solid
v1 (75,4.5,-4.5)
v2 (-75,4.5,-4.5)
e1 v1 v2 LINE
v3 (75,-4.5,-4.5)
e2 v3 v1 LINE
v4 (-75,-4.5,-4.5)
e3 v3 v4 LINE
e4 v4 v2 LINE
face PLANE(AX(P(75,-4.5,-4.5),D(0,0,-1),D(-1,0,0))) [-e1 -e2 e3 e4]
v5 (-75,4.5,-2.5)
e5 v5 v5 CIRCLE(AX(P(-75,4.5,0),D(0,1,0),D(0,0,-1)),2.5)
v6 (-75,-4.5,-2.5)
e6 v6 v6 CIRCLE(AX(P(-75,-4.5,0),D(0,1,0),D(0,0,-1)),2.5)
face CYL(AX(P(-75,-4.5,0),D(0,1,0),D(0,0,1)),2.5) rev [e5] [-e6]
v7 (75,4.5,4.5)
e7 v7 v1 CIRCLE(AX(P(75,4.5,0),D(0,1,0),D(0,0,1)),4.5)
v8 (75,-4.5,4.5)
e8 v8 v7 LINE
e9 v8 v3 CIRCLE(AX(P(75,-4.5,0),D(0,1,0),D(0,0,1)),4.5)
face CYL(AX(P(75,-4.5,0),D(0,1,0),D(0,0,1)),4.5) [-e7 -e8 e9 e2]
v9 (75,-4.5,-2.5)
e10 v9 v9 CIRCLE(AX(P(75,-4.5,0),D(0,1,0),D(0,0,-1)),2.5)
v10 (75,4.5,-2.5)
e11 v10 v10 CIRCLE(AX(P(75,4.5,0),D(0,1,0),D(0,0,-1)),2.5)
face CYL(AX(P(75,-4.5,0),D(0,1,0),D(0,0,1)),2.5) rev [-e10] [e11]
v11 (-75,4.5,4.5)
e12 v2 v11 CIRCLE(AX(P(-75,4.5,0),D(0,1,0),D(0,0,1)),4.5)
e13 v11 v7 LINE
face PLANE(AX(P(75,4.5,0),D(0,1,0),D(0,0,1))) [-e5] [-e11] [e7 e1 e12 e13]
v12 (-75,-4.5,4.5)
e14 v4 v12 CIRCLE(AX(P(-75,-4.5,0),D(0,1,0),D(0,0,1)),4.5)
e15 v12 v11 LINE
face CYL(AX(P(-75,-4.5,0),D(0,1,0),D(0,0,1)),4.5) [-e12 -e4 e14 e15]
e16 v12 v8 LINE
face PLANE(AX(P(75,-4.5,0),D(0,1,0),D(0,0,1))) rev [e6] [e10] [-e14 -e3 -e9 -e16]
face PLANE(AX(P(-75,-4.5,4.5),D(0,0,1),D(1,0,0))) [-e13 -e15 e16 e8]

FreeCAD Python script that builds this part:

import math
import FreeCAD as App
import Part
import Sketcher
from FreeCAD import Vector

doc = App.newDocument("Part")
body = doc.addObject("PartDesign::Body", "Body")

# Sketch on XZ plane
sketch1 = body.newObject("Sketcher::SketchObject", "Sketch")
sketch1.AttachmentSupport = (doc.getObject("XZ_Plane"), [""])
sketch1.MapMode = "FlatFace"
sketch1.AttachmentOffset = App.Placement(Vector(0, 0, -4.5), App.Rotation())
sketch1.addGeometry(Part.LineSegment(Vector(75, -4.5, 0), Vector(-75, -4.5, 0)), False)
sketch1.addGeometry(Part.ArcOfCircle(Part.Circle(Vector(-75, 0, 0), Vector(0, 0, 1), 4.5), math.radians(90), math.radians(270)), False)
sketch1.addGeometry(Part.LineSegment(Vector(-75, 4.5, 0), Vector(75, 4.5, 0)), False)
sketch1.addGeometry(Part.ArcOfCircle(Part.Circle(Vector(75, 0, 0), Vector(0, 0, 1), 4.5), math.radians(-90), math.radians(90)), False)
sketch1.addGeometry(Part.Circle(Vector(-75, 0, 0), Vector(0, 0, 1), 2.5), False)
sketch1.addGeometry(Part.Circle(Vector(75, 0, 0), Vector(0, 0, 1), 2.5), False)
sketch1.addConstraint(Sketcher.Constraint("Tangent", 0, 2, 1, 2))
sketch1.addConstraint(Sketcher.Constraint("Tangent", 1, 1, 2, 1))
sketch1.addConstraint(Sketcher.Constraint("Tangent", 2, 2, 3, 2))
sketch1.addConstraint(Sketcher.Constraint("Tangent", 3, 1, 0, 1))
sketch1.addConstraint(Sketcher.Constraint("Horizontal", 0))
sketch1.addConstraint(Sketcher.Constraint("Horizontal", 2))
sketch1.addConstraint(Sketcher.Constraint("Coincident", 4, 3, 1, 3))
sketch1.addConstraint(Sketcher.Constraint("Coincident", 5, 3, 3, 3))
sketch1.addConstraint(Sketcher.Constraint("Equal", 4, 5))
sketch1.addConstraint(Sketcher.Constraint("Symmetric", 1, 3, 3, 3, -1, 1))
sketch1.addConstraint(Sketcher.Constraint("Diameter", 4, 5.0))
sketch1.addConstraint(Sketcher.Constraint("Radius", 1, 4.5))
sketch1.addConstraint(Sketcher.Constraint("DistanceX", 0, 2, 0, 1, 150.0))
pad1 = body.newObject("PartDesign::Pad", "Pad")
pad1.Profile = sketch1
pad1.Length = 9

doc.recompute()
